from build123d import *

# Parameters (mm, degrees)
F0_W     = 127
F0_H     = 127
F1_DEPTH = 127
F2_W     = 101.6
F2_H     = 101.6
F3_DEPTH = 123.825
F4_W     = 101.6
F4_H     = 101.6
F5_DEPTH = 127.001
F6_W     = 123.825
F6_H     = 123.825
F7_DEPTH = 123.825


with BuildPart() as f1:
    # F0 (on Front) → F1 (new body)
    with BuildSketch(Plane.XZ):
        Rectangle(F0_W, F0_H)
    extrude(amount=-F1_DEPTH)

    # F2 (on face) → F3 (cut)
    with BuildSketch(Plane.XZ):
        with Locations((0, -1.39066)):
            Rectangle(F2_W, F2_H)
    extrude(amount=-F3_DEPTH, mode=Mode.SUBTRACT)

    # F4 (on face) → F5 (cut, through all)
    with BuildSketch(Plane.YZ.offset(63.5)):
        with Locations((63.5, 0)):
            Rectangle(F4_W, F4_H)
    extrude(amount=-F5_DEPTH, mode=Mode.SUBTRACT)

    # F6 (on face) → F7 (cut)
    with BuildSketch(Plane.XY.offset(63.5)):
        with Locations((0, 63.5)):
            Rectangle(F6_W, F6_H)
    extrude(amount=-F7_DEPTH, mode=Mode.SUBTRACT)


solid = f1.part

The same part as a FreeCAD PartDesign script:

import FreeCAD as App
import Part
import Sketcher
Q = App.Units.Quantity


def add_polygon(sketch, points):
    """Adds a closed chain of lines whose ends are joined by coincident constraints."""
    first, n = sketch.GeometryCount, len(points)
    for a, b in zip(points, points[1:] + points[:1]):
        sketch.addGeometry(Part.LineSegment(App.Vector(*a, 0), App.Vector(*b, 0)), False)
    for i in range(n):
        sketch.addConstraint(Sketcher.Constraint("Coincident", first + i, 2, first + (i + 1) % n, 1))

doc = App.newDocument("Part")
body = doc.addObject("PartDesign::Body", "Body")

sketch1 = body.newObject("Sketcher::SketchObject", "Sketch")
sketch1.AttachmentSupport = (doc.getObject("XZ_Plane"), [""])
sketch1.MapMode = "FlatFace"
add_polygon(sketch1, [(-64, 64), (-64, -64), (64, -64), (64, 64)])
sketch1.addConstraint([
    Sketcher.Constraint("Vertical", 0),
    Sketcher.Constraint("Horizontal", 1),
    Sketcher.Constraint("Vertical", 2),
    Sketcher.Constraint("Horizontal", 3),
    Sketcher.Constraint("Symmetric", 0, 2, 2, 2, -1, 1),
    Sketcher.Constraint("Equal", 3, 0),
    Sketcher.Constraint("DistanceX", 1, 1, 1, 2, Q("5 in")),
])
pad1 = body.newObject("PartDesign::Pad", "Pad")
pad1.Profile = sketch1
pad1.Length = Q("5 in")
pad1.Reversed = True

sketch2 = body.newObject("Sketcher::SketchObject", "Sketch001")
sketch2.AttachmentSupport = (doc.getObject("XZ_Plane"), [""])
sketch2.MapMode = "FlatFace"
add_polygon(sketch2, [(-51, 49), (-51, -52), (51, -52), (51, 49)])
sketch2.addConstraint([
    Sketcher.Constraint("Vertical", 0),
    Sketcher.Constraint("Horizontal", 1),
    Sketcher.Constraint("Vertical", 2),
    Sketcher.Constraint("Horizontal", 3),
    Sketcher.Constraint("Equal", 3, 0),
    Sketcher.Constraint("DistanceX", 1, 1, 1, 2, Q("4 in")),
    Sketcher.Constraint("DistanceX", 0, 2, -1, 1, Q("2 in")),
    Sketcher.Constraint("DistanceY", 0, 2, -1, 1, Q("52.19066 mm")),
])
pocket1 = body.newObject("PartDesign::Pocket", "Pocket")
pocket1.Profile = sketch2
pocket1.Length = Q("4.875 in")

sketch3 = body.newObject("Sketcher::SketchObject", "Sketch002")
sketch3.AttachmentSupport = (doc.getObject("YZ_Plane"), [""])
sketch3.MapMode = "FlatFace"
sketch3.AttachmentOffset = App.Placement(App.Vector(0, 0, 2.5 * 25.4), App.Rotation())
add_polygon(sketch3, [(13, 51), (13, -51), (114, -51), (114, 51)])
sketch3.addConstraint([
    Sketcher.Constraint("Vertical", 0),
    Sketcher.Constraint("Horizontal", 1),
    Sketcher.Constraint("Vertical", 2),
    Sketcher.Constraint("Horizontal", 3),
    Sketcher.Constraint("Equal", 3, 0),
    Sketcher.Constraint("DistanceX", 1, 1, 1, 2, Q("4 in")),
    Sketcher.Constraint("DistanceY", 0, 2, -1, 1, Q("2 in")),
    Sketcher.Constraint("DistanceX", -1, 1, 0, 2, Q("0.5 in")),
])
pocket2 = body.newObject("PartDesign::Pocket", "Pocket001")
pocket2.Profile = sketch3
pocket2.Type = "ThroughAll"

sketch4 = body.newObject("Sketcher::SketchObject", "Sketch003")
sketch4.AttachmentSupport = (doc.getObject("XY_Plane"), [""])
sketch4.MapMode = "FlatFace"
sketch4.AttachmentOffset = App.Placement(App.Vector(0, 0, 2.5 * 25.4), App.Rotation())
add_polygon(sketch4, [(-62, 125), (-62, 2), (62, 2), (62, 125)])
sketch4.addConstraint([
    Sketcher.Constraint("Vertical", 0),
    Sketcher.Constraint("Horizontal", 1),
    Sketcher.Constraint("Vertical", 2),
    Sketcher.Constraint("Horizontal", 3),
    Sketcher.Constraint("Equal", 3, 0),
    Sketcher.Constraint("DistanceX", 1, 1, 1, 2, Q("4.875 in")),
    Sketcher.Constraint("DistanceX", 0, 2, -1, 1, Q("2.4375 in")),
    Sketcher.Constraint("DistanceY", -1, 1, 0, 2, Q("0.0625 in")),
])
pocket3 = body.newObject("PartDesign::Pocket", "Pocket002")
pocket3.Profile = sketch4
pocket3.Length = Q("4.875 in")

doc.recompute()
